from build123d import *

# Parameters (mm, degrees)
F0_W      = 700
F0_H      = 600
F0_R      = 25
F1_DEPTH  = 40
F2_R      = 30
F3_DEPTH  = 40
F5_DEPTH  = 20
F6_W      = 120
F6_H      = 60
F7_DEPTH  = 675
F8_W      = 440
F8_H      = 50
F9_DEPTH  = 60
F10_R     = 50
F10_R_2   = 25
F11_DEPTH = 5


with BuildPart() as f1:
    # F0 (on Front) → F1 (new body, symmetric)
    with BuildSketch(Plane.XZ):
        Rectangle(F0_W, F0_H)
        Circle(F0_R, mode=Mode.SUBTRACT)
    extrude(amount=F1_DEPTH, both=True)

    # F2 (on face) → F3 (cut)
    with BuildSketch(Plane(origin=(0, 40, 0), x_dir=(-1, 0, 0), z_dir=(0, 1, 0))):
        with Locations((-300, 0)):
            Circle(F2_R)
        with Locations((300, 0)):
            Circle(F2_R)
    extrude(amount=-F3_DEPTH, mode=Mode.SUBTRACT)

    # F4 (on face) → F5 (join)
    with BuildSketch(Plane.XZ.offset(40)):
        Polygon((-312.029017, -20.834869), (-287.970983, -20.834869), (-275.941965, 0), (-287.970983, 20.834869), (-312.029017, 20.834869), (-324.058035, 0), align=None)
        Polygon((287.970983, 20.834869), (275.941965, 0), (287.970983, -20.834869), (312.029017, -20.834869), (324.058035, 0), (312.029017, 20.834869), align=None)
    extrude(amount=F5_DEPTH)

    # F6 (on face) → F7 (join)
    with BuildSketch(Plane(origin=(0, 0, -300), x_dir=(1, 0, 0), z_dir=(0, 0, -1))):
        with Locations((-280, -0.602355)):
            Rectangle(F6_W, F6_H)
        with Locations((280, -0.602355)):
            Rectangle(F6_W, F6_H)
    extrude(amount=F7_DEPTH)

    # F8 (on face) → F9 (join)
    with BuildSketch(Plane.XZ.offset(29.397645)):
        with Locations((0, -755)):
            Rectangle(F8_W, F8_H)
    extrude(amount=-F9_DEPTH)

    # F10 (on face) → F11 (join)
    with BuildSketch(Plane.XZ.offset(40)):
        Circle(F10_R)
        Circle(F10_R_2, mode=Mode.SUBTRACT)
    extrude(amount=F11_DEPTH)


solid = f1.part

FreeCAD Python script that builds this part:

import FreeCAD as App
import Part
import Sketcher
Q = App.Units.Quantity


def add_polygon(sketch, points):
    """Adds a closed chain of lines whose ends are joined by coincident constraints."""
    first, n = sketch.GeometryCount, len(points)
    for a, b in zip(points, points[1:] + points[:1]):
        sketch.addGeometry(Part.LineSegment(App.Vector(*a, 0), App.Vector(*b, 0)), False)
    for i in range(n):
        sketch.addConstraint(Sketcher.Constraint("Coincident", first + i, 2, first + (i + 1) % n, 1))

doc = App.newDocument("Part")
params = doc.addObject("Spreadsheet::Sheet", "Params")
for row, (alias, value) in enumerate([
    ("sketch1_diameter", "50 mm"),
    ("sketch1_width", "700 mm"),
    ("sketch1_height", "600 mm"),
    ("pad1_length", "80 mm"),
    ("sketch2_diameter", "60 mm"),
    ("pocket1_length", "40 mm"),
    ("pad2_length", "20 mm"),
    ("sketch4_width", "120 mm"),
    ("sketch4_height", "60 mm"),
    ("pad3_length", "675 mm"),
    ("sketch5_width", "440 mm"),
    ("sketch5_height", "50 mm"),
    ("pad4_length", "60 mm"),
    ("sketch6_diameter", "100 mm"),
    ("sketch6_diameter2", "50 mm"),
    ("pad5_length", "5 mm"),
], start=1):
    params.set(f"A{row}", alias)
    params.set(f"B{row}", "=" + value)
    params.setAlias(f"B{row}", alias)

body = doc.addObject("PartDesign::Body", "Body")

# Sketch on XZ plane
sketch1 = body.newObject("Sketcher::SketchObject", "Sketch")
sketch1.AttachmentSupport = (doc.getObject("XZ_Plane"), [""])
sketch1.MapMode = "FlatFace"
add_polygon(sketch1, [(-350, 300), (-350, -300), (350, -300), (350, 300)])  # lines 0-3
sketch1.addGeometry(Part.Circle(App.Vector(0, 0, 0), App.Vector(0, 0, 1), 25), False)  # 4
sketch1.addConstraint(Sketcher.Constraint("Vertical", 0))
sketch1.addConstraint(Sketcher.Constraint("Horizontal", 1))
sketch1.addConstraint(Sketcher.Constraint("Vertical", 2))
sketch1.addConstraint(Sketcher.Constraint("Horizontal", 3))
sketch1.addConstraint(Sketcher.Constraint("Coincident", 4, 3, -1, 1))
sketch1.addConstraint(Sketcher.Constraint("Symmetric", 0, 2, 2, 2, -1, 1))
sketch1.addConstraint(Sketcher.Constraint("Diameter", 4, 50.0))
sketch1.addConstraint(Sketcher.Constraint("DistanceX", 1, 1, 1, 2, 700.0))
sketch1.addConstraint(Sketcher.Constraint("DistanceY", 0, 2, 0, 1, 600.0))
sketch1.setExpression("Constraints[10]", "Params.sketch1_diameter")
sketch1.setExpression("Constraints[11]", "Params.sketch1_width")
sketch1.setExpression("Constraints[12]", "Params.sketch1_height")
pad1 = body.newObject("PartDesign::Pad", "Pad")
pad1.Profile = sketch1
pad1.setExpression("Length", "Params.pad1_length")
pad1.Midplane = True

# Sketch on XZ plane
sketch2 = body.newObject("Sketcher::SketchObject", "Sketch001")
sketch2.AttachmentSupport = (doc.getObject("XZ_Plane"), [""])
sketch2.MapMode = "FlatFace"
sketch2.AttachmentOffset = App.Placement(App.Vector(0, 0, -40), App.Rotation())
sketch2.addGeometry(Part.Circle(App.Vector(300, 0, 0), App.Vector(0, 0, 1), 30), False)
sketch2.addGeometry(Part.Circle(App.Vector(-300, 0, 0), App.Vector(0, 0, 1), 30), False)
sketch2.addConstraint(Sketcher.Constraint("Equal", 0, 1))
sketch2.addConstraint(Sketcher.Constraint("Symmetric", 0, 3, 1, 3, -1, 1))
sketch2.addConstraint(Sketcher.Constraint("PointOnObject", 0, 3, -1))
sketch2.addConstraint(Sketcher.Constraint("Diameter", 0, 60.0))
sketch2.addConstraint(Sketcher.Constraint("DistanceX", -1, 1, 0, 3, 300.0))
sketch2.setExpression("Constraints[3]", "Params.sketch2_diameter")
pocket1 = body.newObject("PartDesign::Pocket", "Pocket")
pocket1.Profile = sketch2
pocket1.setExpression("Length", "Params.pocket1_length")
pocket1.Reversed = True

# Sketch on XZ plane
sketch3 = body.newObject("Sketcher::SketchObject", "Sketch002")
sketch3.AttachmentSupport = (doc.getObject("XZ_Plane"), [""])
sketch3.MapMode = "FlatFace"
sketch3.AttachmentOffset = App.Placement(App.Vector(0, 0, 40), App.Rotation())
add_polygon(sketch3, [(-312, -21), (-288, -21), (-276, 0), (-288, 21), (-312, 21), (-324, 0)])  # lines 0-5
add_polygon(sketch3, [(288, 21), (276, 0), (288, -21), (312, -21), (324, 0), (312, 21)])  # lines 6-11
sketch3.addConstraint(Sketcher.Constraint("Horizontal", 0))
sketch3.addConstraint(Sketcher.Constraint("Horizontal", 3))
sketch3.addConstraint(Sketcher.Constraint("Horizontal", 8))
sketch3.addConstraint(Sketcher.Constraint("Horizontal", 11))
sketch3.addConstraint(Sketcher.Constraint("Symmetric", 1, 2, 6, 2, -1, 1))
sketch3.addConstraint(Sketcher.Constraint("Symmetric", 2, 2, 7, 2, -1, 1))
sketch3.addConstraint(Sketcher.Constraint("Symmetric", 4, 2, 9, 2, -1, 1))
sketch3.addConstraint(Sketcher.Constraint("Symmetric", 5, 2, 10, 2, -1, 1))
sketch3.addConstraint(Sketcher.Constraint("Symmetric", 0, 2, 7, 2, -2))
sketch3.addConstraint(Sketcher.Constraint("PointOnObject", 1, 2, -1))
sketch3.addConstraint(Sketcher.Constraint("PointOnObject", 4, 2, -1))
sketch3.addConstraint(Sketcher.Constraint("Parallel", 1, 4))
sketch3.addConstraint(Sketcher.Constraint("Parallel", 2, 5))
sketch3.addConstraint(Sketcher.Constraint("Parallel", 4, 6))
sketch3.addConstraint(Sketcher.Constraint("Parallel", 6, 9))
sketch3.addConstraint(Sketcher.Constraint("Angle", 1, Q("59.999998 deg")))
sketch3.addConstraint(Sketcher.Constraint("DistanceX", 5, 2, 7, 2, 600.0))
sketch3.addConstraint(Sketcher.Constraint("DistanceX", 0, 1, 0, 2, 24.058034))
sketch3.addConstraint(Sketcher.Constraint("DistanceY", 0, 2, -1, 1, 20.834869))
pad2 = body.newObject("PartDesign::Pad", "Pad001")
pad2.Profile = sketch3
pad2.setExpression("Length", "Params.pad2_length")

# Sketch on XY plane
sketch4 = body.newObject("Sketcher::SketchObject", "Sketch003")
sketch4.AttachmentSupport = (doc.getObject("XY_Plane"), [""])
sketch4.MapMode = "FlatFace"
sketch4.AttachmentOffset = App.Placement(App.Vector(0, 0, -300), App.Rotation())
add_polygon(sketch4, [(-340, -29), (-340, 31), (-220, 31), (-220, -29)])  # lines 0-3
add_polygon(sketch4, [(220, -29), (220, 31), (340, 31), (340, -29)])  # lines 4-7
sketch4.addConstraint(Sketcher.Constraint("Vertical", 0))
sketch4.addConstraint(Sketcher.Constraint("Horizontal", 1))
sketch4.addConstraint(Sketcher.Constraint("Vertical", 2))
sketch4.addConstraint(Sketcher.Constraint("Horizontal", 3))
sketch4.addConstraint(Sketcher.Constraint("Vertical", 4))
sketch4.addConstraint(Sketcher.Constraint("Horizontal", 5))
sketch4.addConstraint(Sketcher.Constraint("Vertical", 6))
sketch4.addConstraint(Sketcher.Constraint("Horizontal", 7))
sketch4.addConstraint(Sketcher.Constraint("Symmetric", 1, 2, 4, 2, -2))
sketch4.addConstraint(Sketcher.Constraint("Symmetric", 3, 2, 6, 2, -2))
sketch4.addConstraint(Sketcher.Constraint("DistanceX", 1, 1, 1, 2, 120.0))
sketch4.addConstraint(Sketcher.Constraint("DistanceY", 0, 1, 0, 2, 60.0))
sketch4.addConstraint(Sketcher.Constraint("DistanceX", 0, 2, -1, 1, 340.0))
sketch4.addConstraint(Sketcher.Constraint("DistanceY", -1, 1, 0, 2, 30.602355))
sketch4.setExpression("Constraints[18]", "Params.sketch4_width")
sketch4.setExpression("Constraints[19]", "Params.sketch4_height")
pad3 = body.newObject("PartDesign::Pad", "Pad002")
pad3.Profile = sketch4
pad3.setExpression("Length", "Params.pad3_length")
pad3.Reversed = True

# Sketch on XZ plane
sketch5 = body.newObject("Sketcher::SketchObject", "Sketch004")
sketch5.AttachmentSupport = (doc.getObject("XZ_Plane"), [""])
sketch5.MapMode = "FlatFace"
sketch5.AttachmentOffset = App.Placement(App.Vector(0, 0, 29.397645), App.Rotation())
add_polygon(sketch5, [(-220, -730), (-220, -780), (220, -780), (220, -730)])  # lines 0-3
sketch5.addConstraint(Sketcher.Constraint("Vertical", 0))
sketch5.addConstraint(Sketcher.Constraint("Horizontal", 1))
sketch5.addConstraint(Sketcher.Constraint("Vertical", 2))
sketch5.addConstraint(Sketcher.Constraint("Horizontal", 3))
sketch5.addConstraint(Sketcher.Constraint("DistanceX", 1, 1, 1, 2, 440.0))
sketch5.addConstraint(Sketcher.Constraint("DistanceY", 0, 2, 0, 1, 50.0))
sketch5.addConstraint(Sketcher.Constraint("DistanceX", 0, 2, -1, 1, 220.0))
sketch5.addConstraint(Sketcher.Constraint("DistanceY", 0, 2, -1, 1, 780.0))
sketch5.setExpression("Constraints[8]", "Params.sketch5_width")
sketch5.setExpression("Constraints[9]", "Params.sketch5_height")
pad4 = body.newObject("PartDesign::Pad", "Pad003")
pad4.Profile = sketch5
pad4.setExpression("Length", "Params.pad4_length")
pad4.Reversed = True

# Sketch on XZ plane
sketch6 = body.newObject("Sketcher::SketchObject", "Sketch005")
sketch6.AttachmentSupport = (doc.getObject("XZ_Plane"), [""])
sketch6.MapMode = "FlatFace"
sketch6.AttachmentOffset = App.Placement(App.Vector(0, 0, 40), App.Rotation())
sketch6.addGeometry(Part.Circle(App.Vector(0, 0, 0), App.Vector(0, 0, 1), 50), False)
sketch6.addGeometry(Part.Circle(App.Vector(0, 0, 0), App.Vector(0, 0, 1), 25), False)
sketch6.addConstraint(Sketcher.Constraint("Coincident", 0, 3, -1, 1))
sketch6.addConstraint(Sketcher.Constraint("Coincident", 1, 3, -1, 1))
sketch6.addConstraint(Sketcher.Constraint("Diameter", 0, 100.0))
sketch6.addConstraint(Sketcher.Constraint("Diameter", 1, 50.0))
sketch6.setExpression("Constraints[2]", "Params.sketch6_diameter")
sketch6.setExpression("Constraints[3]", "Params.sketch6_diameter2")
pad5 = body.newObject("PartDesign::Pad", "Pad004")
pad5.Profile = sketch6
pad5.setExpression("Length", "Params.pad5_length")

doc.recompute()
